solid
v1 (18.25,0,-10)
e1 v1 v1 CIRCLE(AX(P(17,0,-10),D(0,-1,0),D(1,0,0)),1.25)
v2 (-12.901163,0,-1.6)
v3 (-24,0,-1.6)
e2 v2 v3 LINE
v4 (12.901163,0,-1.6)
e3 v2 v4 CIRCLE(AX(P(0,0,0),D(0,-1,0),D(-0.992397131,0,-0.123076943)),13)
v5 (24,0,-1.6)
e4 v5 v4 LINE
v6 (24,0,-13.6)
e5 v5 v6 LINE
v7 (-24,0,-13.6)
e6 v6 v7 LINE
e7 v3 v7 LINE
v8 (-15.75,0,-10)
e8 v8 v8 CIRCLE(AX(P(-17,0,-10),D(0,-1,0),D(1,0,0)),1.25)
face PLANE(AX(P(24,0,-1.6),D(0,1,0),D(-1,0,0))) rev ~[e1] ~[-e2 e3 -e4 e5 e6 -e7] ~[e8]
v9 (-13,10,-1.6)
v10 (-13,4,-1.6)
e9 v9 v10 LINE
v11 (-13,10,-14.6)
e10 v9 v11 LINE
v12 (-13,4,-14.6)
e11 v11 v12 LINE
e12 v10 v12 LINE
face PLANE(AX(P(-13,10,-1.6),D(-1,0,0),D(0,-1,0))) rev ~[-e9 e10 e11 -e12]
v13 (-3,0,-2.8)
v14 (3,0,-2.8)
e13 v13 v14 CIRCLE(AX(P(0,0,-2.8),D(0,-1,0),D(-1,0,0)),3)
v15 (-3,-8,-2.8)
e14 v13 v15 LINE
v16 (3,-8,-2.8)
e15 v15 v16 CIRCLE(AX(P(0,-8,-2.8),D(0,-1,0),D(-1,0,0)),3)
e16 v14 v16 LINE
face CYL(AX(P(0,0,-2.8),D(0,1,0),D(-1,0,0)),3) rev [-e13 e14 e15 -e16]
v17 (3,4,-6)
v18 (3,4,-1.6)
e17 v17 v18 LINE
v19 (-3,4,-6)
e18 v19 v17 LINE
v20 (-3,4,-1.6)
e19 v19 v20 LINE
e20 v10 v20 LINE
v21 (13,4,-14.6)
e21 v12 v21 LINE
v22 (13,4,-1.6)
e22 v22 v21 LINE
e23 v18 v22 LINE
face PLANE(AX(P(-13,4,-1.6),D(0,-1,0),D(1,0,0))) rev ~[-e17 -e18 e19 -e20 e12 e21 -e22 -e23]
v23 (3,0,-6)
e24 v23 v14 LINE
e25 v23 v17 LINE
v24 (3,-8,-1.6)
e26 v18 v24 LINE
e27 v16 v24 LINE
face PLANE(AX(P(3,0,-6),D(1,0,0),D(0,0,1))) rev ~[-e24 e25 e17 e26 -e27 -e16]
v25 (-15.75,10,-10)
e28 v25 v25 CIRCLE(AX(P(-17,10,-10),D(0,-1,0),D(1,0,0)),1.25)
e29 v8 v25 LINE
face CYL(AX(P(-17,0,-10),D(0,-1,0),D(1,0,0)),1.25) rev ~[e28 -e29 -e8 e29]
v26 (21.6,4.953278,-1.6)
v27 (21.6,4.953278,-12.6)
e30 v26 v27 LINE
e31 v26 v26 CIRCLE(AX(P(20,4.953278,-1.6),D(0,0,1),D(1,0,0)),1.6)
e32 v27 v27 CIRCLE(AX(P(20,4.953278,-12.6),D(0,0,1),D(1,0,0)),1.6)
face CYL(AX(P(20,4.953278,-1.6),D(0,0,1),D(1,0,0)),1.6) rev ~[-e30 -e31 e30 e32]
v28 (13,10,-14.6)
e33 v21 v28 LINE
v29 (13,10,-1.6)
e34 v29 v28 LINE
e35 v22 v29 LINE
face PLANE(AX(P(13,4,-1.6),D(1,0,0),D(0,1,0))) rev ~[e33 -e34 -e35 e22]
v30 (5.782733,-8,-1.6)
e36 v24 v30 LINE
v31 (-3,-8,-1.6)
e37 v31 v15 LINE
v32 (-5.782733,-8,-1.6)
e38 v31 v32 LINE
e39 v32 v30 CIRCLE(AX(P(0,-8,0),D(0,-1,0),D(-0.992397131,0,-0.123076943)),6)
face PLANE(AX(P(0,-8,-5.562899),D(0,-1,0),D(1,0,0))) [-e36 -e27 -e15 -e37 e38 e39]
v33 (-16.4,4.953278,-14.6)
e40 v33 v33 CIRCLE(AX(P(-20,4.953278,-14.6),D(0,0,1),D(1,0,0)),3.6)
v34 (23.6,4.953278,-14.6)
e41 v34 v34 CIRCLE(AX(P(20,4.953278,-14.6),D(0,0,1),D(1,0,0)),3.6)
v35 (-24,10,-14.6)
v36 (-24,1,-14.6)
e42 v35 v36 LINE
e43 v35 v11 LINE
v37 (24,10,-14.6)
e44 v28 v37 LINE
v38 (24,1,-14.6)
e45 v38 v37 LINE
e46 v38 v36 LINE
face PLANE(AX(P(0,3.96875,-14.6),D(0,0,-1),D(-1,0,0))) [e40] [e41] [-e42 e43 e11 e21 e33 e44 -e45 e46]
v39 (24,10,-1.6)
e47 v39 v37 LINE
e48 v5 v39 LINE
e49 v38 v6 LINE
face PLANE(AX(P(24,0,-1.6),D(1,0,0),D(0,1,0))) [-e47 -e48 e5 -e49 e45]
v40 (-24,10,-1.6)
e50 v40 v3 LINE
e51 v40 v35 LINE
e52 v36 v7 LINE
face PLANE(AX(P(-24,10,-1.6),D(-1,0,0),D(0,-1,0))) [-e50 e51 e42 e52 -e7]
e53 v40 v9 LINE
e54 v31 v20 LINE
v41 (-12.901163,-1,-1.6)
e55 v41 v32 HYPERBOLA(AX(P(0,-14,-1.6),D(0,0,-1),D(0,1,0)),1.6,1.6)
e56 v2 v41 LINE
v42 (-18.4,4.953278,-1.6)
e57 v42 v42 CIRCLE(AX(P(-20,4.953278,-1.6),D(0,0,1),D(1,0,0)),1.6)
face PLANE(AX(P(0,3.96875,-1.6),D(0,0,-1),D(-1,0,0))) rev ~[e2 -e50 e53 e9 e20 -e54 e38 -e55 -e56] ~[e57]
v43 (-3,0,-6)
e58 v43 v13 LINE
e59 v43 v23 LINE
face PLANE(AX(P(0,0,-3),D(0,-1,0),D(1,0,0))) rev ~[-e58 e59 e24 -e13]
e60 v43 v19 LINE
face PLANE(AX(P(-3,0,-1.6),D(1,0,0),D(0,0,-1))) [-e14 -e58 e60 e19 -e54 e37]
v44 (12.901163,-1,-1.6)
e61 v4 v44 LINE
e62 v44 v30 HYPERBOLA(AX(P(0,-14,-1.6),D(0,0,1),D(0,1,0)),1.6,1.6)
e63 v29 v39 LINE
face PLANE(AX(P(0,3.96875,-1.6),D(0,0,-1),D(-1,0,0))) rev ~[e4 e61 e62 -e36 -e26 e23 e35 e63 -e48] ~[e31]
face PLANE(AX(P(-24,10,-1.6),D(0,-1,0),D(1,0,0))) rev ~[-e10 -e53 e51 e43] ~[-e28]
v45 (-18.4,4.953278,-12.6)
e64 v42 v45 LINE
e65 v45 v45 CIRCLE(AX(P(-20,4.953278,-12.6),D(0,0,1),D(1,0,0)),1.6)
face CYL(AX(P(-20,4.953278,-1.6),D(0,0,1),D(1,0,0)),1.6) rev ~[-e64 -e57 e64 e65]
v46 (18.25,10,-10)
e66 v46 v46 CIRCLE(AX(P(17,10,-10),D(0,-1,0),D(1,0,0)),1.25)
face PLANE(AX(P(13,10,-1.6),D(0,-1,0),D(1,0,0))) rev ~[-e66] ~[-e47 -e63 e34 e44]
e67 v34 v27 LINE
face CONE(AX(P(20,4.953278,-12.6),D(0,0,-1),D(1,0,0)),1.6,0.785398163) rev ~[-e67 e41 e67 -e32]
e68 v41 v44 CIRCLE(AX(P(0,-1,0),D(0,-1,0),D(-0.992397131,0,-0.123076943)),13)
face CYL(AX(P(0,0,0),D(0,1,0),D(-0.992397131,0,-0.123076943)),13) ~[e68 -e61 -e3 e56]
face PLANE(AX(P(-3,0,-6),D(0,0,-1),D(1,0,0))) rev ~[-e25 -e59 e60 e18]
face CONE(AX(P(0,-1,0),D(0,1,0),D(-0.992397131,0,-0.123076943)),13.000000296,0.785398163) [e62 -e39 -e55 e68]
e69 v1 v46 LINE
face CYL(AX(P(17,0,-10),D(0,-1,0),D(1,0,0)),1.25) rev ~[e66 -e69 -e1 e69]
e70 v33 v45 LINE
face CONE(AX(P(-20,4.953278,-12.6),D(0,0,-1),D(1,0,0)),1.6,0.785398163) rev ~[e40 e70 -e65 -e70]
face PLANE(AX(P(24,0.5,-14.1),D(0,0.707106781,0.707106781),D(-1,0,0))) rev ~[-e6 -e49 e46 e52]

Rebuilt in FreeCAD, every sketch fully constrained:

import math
import FreeCAD as App
import Part
import Sketcher
from FreeCAD import Vector
Q = App.Units.Quantity


def edges_at(feature, points):
    """Names of the edges that pass closest to the given points."""
    edges = feature.Shape.Edges
    near = lambda p: min(range(len(edges)), key=lambda i: edges[i].distToShape(Part.Vertex(*p))[0])
    return sorted({f"Edge{near(p) + 1}" for p in points})

doc = App.newDocument("Part")
body = doc.addObject("PartDesign::Body", "Body")

# Sketch on XZ plane
sketch1 = body.newObject("Sketcher::SketchObject", "Sketch")
sketch1.AttachmentSupport = (doc.getObject("XZ_Plane"), [""])
sketch1.MapMode = "FlatFace"
sketch1.addGeometry(Part.ArcOfCircle(Part.Circle(Vector(0, 0, 0), Vector(0, 0, 1), 13), math.radians(-173), math.radians(-7)), False)
sketch1.addGeometry(Part.LineSegment(Vector(12.9, -1.6, 0), Vector(3, -1.6, 0)), False)
sketch1.addGeometry(Part.LineSegment(Vector(3, -1.6, 0), Vector(3, -2.8, 0)), False)
sketch1.addGeometry(Part.ArcOfCircle(Part.Circle(Vector(0, -2.8, 0), Vector(0, 0, 1), 3), math.radians(180), math.radians(360)), False)
sketch1.addGeometry(Part.LineSegment(Vector(-3, -2.8, 0), Vector(-3, -1.6, 0)), False)
sketch1.addGeometry(Part.LineSegment(Vector(-3, -1.6, 0), Vector(-12.9, -1.6, 0)), False)
sketch1.addConstraint(Sketcher.Constraint("Coincident", 0, 2, 1, 1))
sketch1.addConstraint(Sketcher.Constraint("Coincident", 1, 2, 2, 1))
sketch1.addConstraint(Sketcher.Constraint("Tangent", 2, 2, 3, 2))
sketch1.addConstraint(Sketcher.Constraint("Tangent", 3, 1, 4, 1))
sketch1.addConstraint(Sketcher.Constraint("Coincident", 4, 2, 5, 1))
sketch1.addConstraint(Sketcher.Constraint("Coincident", 5, 2, 0, 1))
sketch1.addConstraint(Sketcher.Constraint("Horizontal", 1))
sketch1.addConstraint(Sketcher.Constraint("Vertical", 2))
sketch1.addConstraint(Sketcher.Constraint("Vertical", 4))
sketch1.addConstraint(Sketcher.Constraint("Horizontal", 5))
sketch1.addConstraint(Sketcher.Constraint("Coincident", 0, 3, -1, 1))
sketch1.addConstraint(Sketcher.Constraint("Symmetric", 1, 2, 4, 2, -2))
sketch1.addConstraint(Sketcher.Constraint("Radius", 0, Q("13 mm")))
sketch1.addConstraint(Sketcher.Constraint("Radius", 3, Q("3 mm")))
sketch1.addConstraint(Sketcher.Constraint("DistanceY", 2, 2, 2, 1, Q("1.2 mm")))
sketch1.addConstraint(Sketcher.Constraint("DistanceY", 3, 3, -1, 1, Q("2.8 mm")))
pad1 = body.newObject("PartDesign::Pad", "Pad")
pad1.Profile = sketch1
pad1.Length = 8
doc.recompute()

chamfer = body.newObject("PartDesign::Chamfer", "Chamfer")
chamfer.Base = (pad1, edges_at(pad1, [(0, -8, -13)]))
chamfer.Size = 7

# Sketch on XY plane
sketch2 = body.newObject("Sketcher::SketchObject", "Sketch001")
sketch2.AttachmentSupport = (doc.getObject("XY_Plane"), [""])
sketch2.MapMode = "FlatFace"
sketch2.AttachmentOffset = App.Placement(Vector(0, 0, -1.6), App.Rotation())
sketch2.addGeometry(Part.LineSegment(Vector(-24, 0, 0), Vector(24, 0, 0)), False)
sketch2.addGeometry(Part.LineSegment(Vector(24, 0, 0), Vector(24, 10, 0)), False)
sketch2.addGeometry(Part.LineSegment(Vector(24, 10, 0), Vector(13, 10, 0)), False)
sketch2.addGeometry(Part.LineSegment(Vector(13, 10, 0), Vector(13, 4, 0)), False)
sketch2.addGeometry(Part.LineSegment(Vector(13, 4, 0), Vector(-13, 4, 0)), False)
sketch2.addGeometry(Part.LineSegment(Vector(-13, 4, 0), Vector(-13, 10, 0)), False)
sketch2.addGeometry(Part.LineSegment(Vector(-13, 10, 0), Vector(-24, 10, 0)), False)
sketch2.addGeometry(Part.LineSegment(Vector(-24, 10, 0), Vector(-24, 0, 0)), False)
sketch2.addGeometry(Part.Circle(Vector(20, 5, 0), Vector(0, 0, 1), 1.6), False)
sketch2.addGeometry(Part.Circle(Vector(-20, 5, 0), Vector(0, 0, 1), 1.6), False)
sketch2.addConstraint(Sketcher.Constraint("Coincident", 0, 2, 1, 1))
sketch2.addConstraint(Sketcher.Constraint("Coincident", 1, 2, 2, 1))
sketch2.addConstraint(Sketcher.Constraint("Coincident", 2, 2, 3, 1))
sketch2.addConstraint(Sketcher.Constraint("Coincident", 3, 2, 4, 1))
sketch2.addConstraint(Sketcher.Constraint("Coincident", 4, 2, 5, 1))
sketch2.addConstraint(Sketcher.Constraint("Coincident", 5, 2, 6, 1))
sketch2.addConstraint(Sketcher.Constraint("Coincident", 6, 2, 7, 1))
sketch2.addConstraint(Sketcher.Constraint("Coincident", 7, 2, 0, 1))
sketch2.addConstraint(Sketcher.Constraint("Horizontal", 0))
sketch2.addConstraint(Sketcher.Constraint("Vertical", 1))
sketch2.addConstraint(Sketcher.Constraint("Horizontal", 2))
sketch2.addConstraint(Sketcher.Constraint("Vertical", 3))
sketch2.addConstraint(Sketcher.Constraint("Horizontal", 4))
sketch2.addConstraint(Sketcher.Constraint("Vertical", 5))
sketch2.addConstraint(Sketcher.Constraint("Horizontal", 6))
sketch2.addConstraint(Sketcher.Constraint("Vertical", 7))
sketch2.addConstraint(Sketcher.Constraint("Equal", 8, 9))
sketch2.addConstraint(Sketcher.Constraint("Symmetric", 0, 2, 7, 2, -1, 1))
sketch2.addConstraint(Sketcher.Constraint("Symmetric", 8, 3, 9, 3, -2))
sketch2.addConstraint(Sketcher.Constraint("Symmetric", 2, 2, 5, 2, -2))
sketch2.addConstraint(Sketcher.Constraint("Diameter", 8, Q("3.2 mm")))
sketch2.addConstraint(Sketcher.Constraint("DistanceX", 0, 1, 0, 2, Q("48 mm")))
sketch2.addConstraint(Sketcher.Constraint("DistanceX", 2, 2, 2, 1, Q("11 mm")))
sketch2.addConstraint(Sketcher.Constraint("DistanceY", 1, 1, 1, 2, Q("10 mm")))
sketch2.addConstraint(Sketcher.Constraint("DistanceY", 3, 2, 3, 1, Q("6 mm")))
sketch2.addConstraint(Sketcher.Constraint("DistanceX", -1, 1, 8, 3, Q("20 mm")))
sketch2.addConstraint(Sketcher.Constraint("DistanceY", 3, 2, 8, 3, Q("0.953278 mm")))
pad2 = body.newObject("PartDesign::Pad", "Pad001")
pad2.Profile = sketch2
pad2.Length = 13
pad2.Reversed = True

# Sketch on XZ plane
sketch3 = body.newObject("Sketcher::SketchObject", "Sketch002")
sketch3.AttachmentSupport = (doc.getObject("XZ_Plane"), [""])
sketch3.MapMode = "FlatFace"
sketch3.addGeometry(Part.LineSegment(Vector(-3, 0, 0), Vector(-3, -6, 0)), False)
sketch3.addGeometry(Part.LineSegment(Vector(-3, -6, 0), Vector(3, -6, 0)), False)
sketch3.addGeometry(Part.LineSegment(Vector(3, -6, 0), Vector(3, 0, 0)), False)
sketch3.addGeometry(Part.LineSegment(Vector(3, 0, 0), Vector(-3, 0, 0)), False)
sketch3.addConstraint(Sketcher.Constraint("Coincident", 0, 2, 1, 1))
sketch3.addConstraint(Sketcher.Constraint("Coincident", 1, 2, 2, 1))
sketch3.addConstraint(Sketcher.Constraint("Coincident", 2, 2, 3, 1))
sketch3.addConstraint(Sketcher.Constraint("Coincident", 3, 2, 0, 1))
sketch3.addConstraint(Sketcher.Constraint("Vertical", 0))
sketch3.addConstraint(Sketcher.Constraint("Horizontal", 1))
sketch3.addConstraint(Sketcher.Constraint("Vertical", 2))
sketch3.addConstraint(Sketcher.Constraint("Horizontal", 3))
sketch3.addConstraint(Sketcher.Constraint("Symmetric", 2, 2, 3, 2, -1, 1))
sketch3.addConstraint(Sketcher.Constraint("Equal", 3, 0))
sketch3.addConstraint(Sketcher.Constraint("DistanceX", 1, 1, 1, 2, Q("6 mm")))
pocket1 = body.newObject("PartDesign::Pocket", "Pocket")
pocket1.Profile = sketch3
pocket1.Length = 10

# Sketch on XZ plane
sketch4 = body.newObject("Sketcher::SketchObject", "Sketch003")
sketch4.AttachmentSupport = (doc.getObject("XZ_Plane"), [""])
sketch4.MapMode = "FlatFace"
sketch4.addGeometry(Part.Circle(Vector(-17, -10, 0), Vector(0, 0, 1), 1.2), False)
sketch4.addGeometry(Part.Circle(Vector(17, -10, 0), Vector(0, 0, 1), 1.2), False)
sketch4.addConstraint(Sketcher.Constraint("Equal", 0, 1))
sketch4.addConstraint(Sketcher.Constraint("Symmetric", 0, 3, 1, 3, -2))
sketch4.addConstraint(Sketcher.Constraint("Diameter", 0, Q("2.5 mm")))
sketch4.addConstraint(Sketcher.Constraint("DistanceX", 0, 3, -1, 1, Q("17 mm")))
sketch4.addConstraint(Sketcher.Constraint("DistanceY", 0, 3, -1, 1, Q("10 mm")))
pocket2 = body.newObject("PartDesign::Pocket", "Pocket001")
pocket2.Profile = sketch4
pocket2.Type = "ThroughAll"
doc.recompute()

chamfer2 = body.newObject("PartDesign::Chamfer", "Chamfer001")
chamfer2.Base = (pocket2, edges_at(pocket2, [(18.4, 4.953, -14.6), (-21.6, 4.953, -14.6)]))
chamfer2.Size = 2
doc.recompute()

chamfer3 = body.newObject("PartDesign::Chamfer", "Chamfer002")
chamfer3.Base = (chamfer2, edges_at(chamfer2, [(0, 0, -14.6)]))
chamfer3.Size = 1

doc.recompute()
